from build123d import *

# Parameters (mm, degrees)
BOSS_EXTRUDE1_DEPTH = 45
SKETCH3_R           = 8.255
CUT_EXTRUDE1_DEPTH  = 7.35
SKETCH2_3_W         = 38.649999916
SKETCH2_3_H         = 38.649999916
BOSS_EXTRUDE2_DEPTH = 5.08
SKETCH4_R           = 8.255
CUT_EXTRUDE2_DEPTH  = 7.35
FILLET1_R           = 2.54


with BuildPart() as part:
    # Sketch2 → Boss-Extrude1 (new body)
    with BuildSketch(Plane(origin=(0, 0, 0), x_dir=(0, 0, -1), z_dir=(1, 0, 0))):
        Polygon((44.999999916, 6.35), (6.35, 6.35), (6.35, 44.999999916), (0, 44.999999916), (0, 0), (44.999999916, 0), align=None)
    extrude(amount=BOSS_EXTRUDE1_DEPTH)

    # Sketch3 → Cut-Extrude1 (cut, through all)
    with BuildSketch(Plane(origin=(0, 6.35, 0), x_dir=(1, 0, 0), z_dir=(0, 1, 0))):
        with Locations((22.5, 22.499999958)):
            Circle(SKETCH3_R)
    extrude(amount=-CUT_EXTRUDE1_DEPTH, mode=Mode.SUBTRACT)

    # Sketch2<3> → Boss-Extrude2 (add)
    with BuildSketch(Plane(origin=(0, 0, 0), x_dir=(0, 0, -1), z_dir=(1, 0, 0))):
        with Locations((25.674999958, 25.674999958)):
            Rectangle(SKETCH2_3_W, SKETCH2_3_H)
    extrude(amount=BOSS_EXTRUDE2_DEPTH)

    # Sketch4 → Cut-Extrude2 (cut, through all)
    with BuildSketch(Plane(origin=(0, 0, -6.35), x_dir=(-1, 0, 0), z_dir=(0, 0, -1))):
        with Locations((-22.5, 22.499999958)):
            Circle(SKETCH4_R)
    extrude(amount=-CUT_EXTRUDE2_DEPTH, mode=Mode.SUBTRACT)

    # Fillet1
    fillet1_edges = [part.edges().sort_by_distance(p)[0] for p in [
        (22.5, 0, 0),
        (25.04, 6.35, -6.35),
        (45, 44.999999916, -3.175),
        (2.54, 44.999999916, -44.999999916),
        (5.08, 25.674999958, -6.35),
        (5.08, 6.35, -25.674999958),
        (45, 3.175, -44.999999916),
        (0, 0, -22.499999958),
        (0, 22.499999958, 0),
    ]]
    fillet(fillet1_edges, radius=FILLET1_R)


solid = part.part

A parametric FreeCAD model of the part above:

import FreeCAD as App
import Part
import Sketcher

V = App.Vector
Q = App.Units.Quantity


def edges_at(feature, points):
    """Names of the edges that pass closest to the given points."""
    edges = feature.Shape.Edges
    near = lambda p: min(range(len(edges)), key=lambda i: edges[i].distToShape(Part.Vertex(*p))[0])
    return sorted({f"Edge{near(p) + 1}" for p in points})

doc = App.newDocument("Part")
body = doc.addObject("PartDesign::Body", "Body")

sketch1 = body.newObject("Sketcher::SketchObject", "Sketch")
sketch1.AttachmentSupport = (doc.getObject("YZ_Plane"), [""])
sketch1.MapMode = "FlatFace"
sketch1.addGeometry([
    Part.LineSegment(V(6, -45, 0), V(6, -6, 0)),
    Part.LineSegment(V(6, -6, 0), V(45, -6, 0)),
    Part.LineSegment(V(45, -6, 0), V(45, 0, 0)),
    Part.LineSegment(V(45, 0, 0), V(0, 0, 0)),
    Part.LineSegment(V(0, 0, 0), V(0, -45, 0)),
    Part.LineSegment(V(0, -45, 0), V(6, -45, 0)),
], False)
sketch1.addConstraint([
    Sketcher.Constraint("Coincident", 0, 2, 1, 1),
    Sketcher.Constraint("Coincident", 1, 2, 2, 1),
    Sketcher.Constraint("Coincident", 2, 2, 3, 1),
    Sketcher.Constraint("Coincident", 3, 2, 4, 1),
    Sketcher.Constraint("Coincident", 4, 2, 5, 1),
    Sketcher.Constraint("Coincident", 5, 2, 0, 1),
    Sketcher.Constraint("Vertical", 0),
    Sketcher.Constraint("Horizontal", 1),
    Sketcher.Constraint("Vertical", 2),
    Sketcher.Constraint("Horizontal", 3),
    Sketcher.Constraint("Vertical", 4),
    Sketcher.Constraint("Horizontal", 5),
    Sketcher.Constraint("Coincident", 3, 2, -1, 1),
    Sketcher.Constraint("Equal", 1, 0),
    Sketcher.Constraint("Equal", 5, 2),
    Sketcher.Constraint("DistanceX", 5, 1, 5, 2, Q("0.25 in")),
    Sketcher.Constraint("DistanceX", 1, 1, 1, 2, Q("38.65 mm")),
])
pad1 = body.newObject("PartDesign::Pad", "Pad")
pad1.Profile = sketch1
pad1.Length = 45

sketch2 = body.newObject("Sketcher::SketchObject", "Sketch001")
sketch2.AttachmentSupport = (doc.getObject("XZ_Plane"), [""])
sketch2.MapMode = "FlatFace"
sketch2.AttachmentOffset = App.Placement(V(0, 0, -0.25 * 25.4), App.Rotation())
sketch2.addGeometry(Part.Circle(V(22, -22, 0), V(0, 0, 1), 8), False)
sketch2.addConstraint([
    Sketcher.Constraint("Diameter", 0, Q("0.65 in")),
    Sketcher.Constraint("DistanceX", -1, 1, 0, 3, Q("22.5 mm")),
    Sketcher.Constraint("DistanceY", 0, 3, -1, 1, Q("22.5 mm")),
])
pocket1 = body.newObject("PartDesign::Pocket", "Pocket")
pocket1.Profile = sketch2
pocket1.Type = "ThroughAll"
pocket1.Reversed = True

sketch3 = body.newObject("Sketcher::SketchObject", "Sketch002")
sketch3.AttachmentSupport = (doc.getObject("YZ_Plane"), [""])
sketch3.MapMode = "FlatFace"
sketch3.addGeometry([
    Part.LineSegment(V(45, -6, 0), V(6, -6, 0)),
    Part.LineSegment(V(6, -6, 0), V(6, -45, 0)),
    Part.LineSegment(V(6, -45, 0), V(45, -45, 0)),
    Part.LineSegment(V(45, -45, 0), V(45, -6, 0)),
], False)
sketch3.addConstraint([
    Sketcher.Constraint("Coincident", 0, 2, 1, 1),
    Sketcher.Constraint("Coincident", 1, 2, 2, 1),
    Sketcher.Constraint("Coincident", 2, 2, 3, 1),
    Sketcher.Constraint("Coincident", 3, 2, 0, 1),
    Sketcher.Constraint("Horizontal", 0),
    Sketcher.Constraint("Vertical", 1),
    Sketcher.Constraint("Horizontal", 2),
    Sketcher.Constraint("Vertical", 3),
    Sketcher.Constraint("Equal", 2, 1),
    Sketcher.Constraint("DistanceX", -1, 1, 0, 2, Q("0.25 in")),
    Sketcher.Constraint("DistanceY", 0, 2, -1, 1, Q("0.25 in")),
    Sketcher.Constraint("DistanceX", 0, 2, 0, 1, Q("38.65 mm")),
])
pad2 = body.newObject("PartDesign::Pad", "Pad001")
pad2.Profile = sketch3
pad2.Length = Q("0.2 in")

sketch4 = body.newObject("Sketcher::SketchObject", "Sketch003")
sketch4.AttachmentSupport = (doc.getObject("XY_Plane"), [""])
sketch4.MapMode = "FlatFace"
sketch4.AttachmentOffset = App.Placement(V(0, 0, -0.25 * 25.4), App.Rotation())
sketch4.addGeometry(Part.Circle(V(22, 22, 0), V(0, 0, 1), 8), False)
sketch4.addConstraint([
    Sketcher.Constraint("Diameter", 0, Q("0.65 in")),
    Sketcher.Constraint("DistanceX", -1, 1, 0, 3, Q("22.5 mm")),
    Sketcher.Constraint("DistanceY", -1, 1, 0, 3, Q("22.5 mm")),
])
pocket2 = body.newObject("PartDesign::Pocket", "Pocket001")
pocket2.Profile = sketch4
pocket2.Type = "ThroughAll"
pocket2.Reversed = True
doc.recompute()

fillet = body.newObject("PartDesign::Fillet", "Fillet")
fillet.Base = (pocket2, edges_at(pocket2, [
    (22.5, 0, 0),
    (25.04, 6.35, -6.35),
    (45, 45, -3.175),
    (2.54, 45, -45),
    (5.08, 25.675, -6.35),
    (5.08, 6.35, -25.675),
    (45, 3.175, -45),
    (0, 0, -22.5),
    (0, 22.5, 0),
]))
fillet.Radius = Q("0.1 in")

doc.recompute()
